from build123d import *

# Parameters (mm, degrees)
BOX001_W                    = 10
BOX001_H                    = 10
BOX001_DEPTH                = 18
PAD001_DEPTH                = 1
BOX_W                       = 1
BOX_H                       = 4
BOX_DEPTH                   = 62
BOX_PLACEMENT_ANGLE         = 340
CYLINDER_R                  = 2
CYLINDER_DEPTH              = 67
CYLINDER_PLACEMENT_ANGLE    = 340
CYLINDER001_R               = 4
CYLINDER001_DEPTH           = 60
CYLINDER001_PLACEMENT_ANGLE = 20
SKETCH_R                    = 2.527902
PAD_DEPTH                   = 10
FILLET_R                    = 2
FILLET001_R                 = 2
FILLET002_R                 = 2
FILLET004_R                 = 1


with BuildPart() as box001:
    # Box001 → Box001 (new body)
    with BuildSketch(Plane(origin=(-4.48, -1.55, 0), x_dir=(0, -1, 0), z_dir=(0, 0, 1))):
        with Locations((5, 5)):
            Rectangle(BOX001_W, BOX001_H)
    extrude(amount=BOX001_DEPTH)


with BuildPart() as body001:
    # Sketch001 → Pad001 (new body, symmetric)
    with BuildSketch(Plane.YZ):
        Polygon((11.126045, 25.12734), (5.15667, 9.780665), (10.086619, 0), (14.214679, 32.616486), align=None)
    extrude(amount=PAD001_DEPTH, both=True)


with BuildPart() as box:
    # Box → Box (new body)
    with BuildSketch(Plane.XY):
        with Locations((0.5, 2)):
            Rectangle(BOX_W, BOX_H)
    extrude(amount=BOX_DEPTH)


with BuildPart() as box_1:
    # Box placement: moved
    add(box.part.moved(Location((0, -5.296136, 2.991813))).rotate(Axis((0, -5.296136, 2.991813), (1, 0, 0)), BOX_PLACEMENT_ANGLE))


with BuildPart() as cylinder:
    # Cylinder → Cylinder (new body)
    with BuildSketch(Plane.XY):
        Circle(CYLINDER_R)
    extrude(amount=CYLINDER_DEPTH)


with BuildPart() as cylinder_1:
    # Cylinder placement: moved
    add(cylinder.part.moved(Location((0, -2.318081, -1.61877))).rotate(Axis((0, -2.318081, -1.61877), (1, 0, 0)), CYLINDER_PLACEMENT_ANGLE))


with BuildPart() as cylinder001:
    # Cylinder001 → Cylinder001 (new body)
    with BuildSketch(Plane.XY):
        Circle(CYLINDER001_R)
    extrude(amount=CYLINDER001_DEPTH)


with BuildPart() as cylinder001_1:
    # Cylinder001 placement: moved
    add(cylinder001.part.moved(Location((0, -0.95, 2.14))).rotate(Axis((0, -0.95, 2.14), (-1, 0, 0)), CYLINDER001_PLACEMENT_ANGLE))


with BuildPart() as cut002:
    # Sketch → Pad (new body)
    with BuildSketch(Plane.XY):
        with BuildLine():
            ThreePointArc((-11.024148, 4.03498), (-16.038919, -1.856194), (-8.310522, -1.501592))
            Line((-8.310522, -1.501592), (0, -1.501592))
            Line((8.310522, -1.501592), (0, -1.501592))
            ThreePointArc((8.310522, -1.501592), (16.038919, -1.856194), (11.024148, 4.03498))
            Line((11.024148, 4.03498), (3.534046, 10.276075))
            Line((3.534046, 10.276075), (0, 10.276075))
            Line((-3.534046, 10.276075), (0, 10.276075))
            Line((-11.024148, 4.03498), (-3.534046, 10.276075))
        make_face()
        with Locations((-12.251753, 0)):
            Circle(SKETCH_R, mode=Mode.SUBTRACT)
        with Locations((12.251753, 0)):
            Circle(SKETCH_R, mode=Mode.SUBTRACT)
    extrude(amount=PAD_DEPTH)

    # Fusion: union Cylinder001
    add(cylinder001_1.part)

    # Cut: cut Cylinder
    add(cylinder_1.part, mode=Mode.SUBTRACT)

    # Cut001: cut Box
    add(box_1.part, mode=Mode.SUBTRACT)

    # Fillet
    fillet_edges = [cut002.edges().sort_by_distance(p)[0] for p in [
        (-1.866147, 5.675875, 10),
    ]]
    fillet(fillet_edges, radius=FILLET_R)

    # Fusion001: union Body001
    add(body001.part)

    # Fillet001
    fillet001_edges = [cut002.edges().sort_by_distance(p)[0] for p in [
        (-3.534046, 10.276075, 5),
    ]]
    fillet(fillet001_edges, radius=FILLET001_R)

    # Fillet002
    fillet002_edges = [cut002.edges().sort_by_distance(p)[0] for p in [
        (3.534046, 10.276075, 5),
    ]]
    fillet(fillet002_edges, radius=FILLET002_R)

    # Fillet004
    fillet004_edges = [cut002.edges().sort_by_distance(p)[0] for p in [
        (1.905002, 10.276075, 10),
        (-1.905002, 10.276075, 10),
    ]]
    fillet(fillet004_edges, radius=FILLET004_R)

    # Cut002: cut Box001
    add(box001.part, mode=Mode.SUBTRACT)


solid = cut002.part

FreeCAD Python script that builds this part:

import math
import FreeCAD as App
import Part
import Sketcher

V = App.Vector
Q = App.Units.Quantity


def edges_at(feature, points):
    """Names of the edges that pass closest to the given points."""
    edges = feature.Shape.Edges
    near = lambda p: min(range(len(edges)), key=lambda i: edges[i].distToShape(Part.Vertex(*p))[0])
    return sorted({f"Edge{near(p) + 1}" for p in points})


def add_polygon(sketch, points):
    """Adds a closed chain of lines whose ends are joined by coincident constraints."""
    first, n = sketch.GeometryCount, len(points)
    for a, b in zip(points, points[1:] + points[:1]):
        sketch.addGeometry(Part.LineSegment(App.Vector(*a, 0), App.Vector(*b, 0)), False)
    for i in range(n):
        sketch.addConstraint(Sketcher.Constraint("Coincident", first + i, 2, first + (i + 1) % n, 1))

doc = App.newDocument("Part")
body = doc.addObject("PartDesign::Body", "Body")

# Sketch on XY plane
sketch1 = body.newObject("Sketcher::SketchObject", "Sketch")
sketch1.AttachmentSupport = (doc.getObject("XY_Plane"), [""])
sketch1.MapMode = "FlatFace"
add_polygon(sketch1, [(5.52, -1.55), (-4.48, -1.55), (-4.48, -11.55), (5.52, -11.55)])  # lines 0-3
sketch1.addConstraint(Sketcher.Constraint("Horizontal", 0))
sketch1.addConstraint(Sketcher.Constraint("Vertical", 1))
sketch1.addConstraint(Sketcher.Constraint("Horizontal", 2))
sketch1.addConstraint(Sketcher.Constraint("Vertical", 3))
sketch1.addConstraint(Sketcher.Constraint("Equal", 2, 1))
sketch1.addConstraint(Sketcher.Constraint("DistanceX", 0, 2, 0, 1, Q("10 mm")))
sketch1.addConstraint(Sketcher.Constraint("DistanceX", 0, 2, -1, 1, Q("4.48 mm")))
sketch1.addConstraint(Sketcher.Constraint("DistanceY", 0, 2, -1, 1, Q("1.55 mm")))
pad1 = body.newObject("PartDesign::Pad", "Pad")
pad1.Profile = sketch1
pad1.Length = 18
body2 = doc.addObject("PartDesign::Body", "Body001")

# Sketch on YZ plane
sketch2 = body2.newObject("Sketcher::SketchObject", "Sketch001")
sketch2.AttachmentSupport = (doc.getObject("YZ_Plane001"), [""])
sketch2.MapMode = "FlatFace"
add_polygon(sketch2, [(11.126045, 25.12734), (5.15667, 9.780665), (10.086619, 0), (14.214679, 32.616486)])  # lines 0-3
sketch2.addConstraint(Sketcher.Constraint("PointOnObject", 1, 2, -1))
sketch2.addConstraint(Sketcher.Constraint("Distance", 0, Q("16.46675 mm")))
sketch2.addConstraint(Sketcher.Constraint("Distance", 1, Q("10.95289 mm")))
sketch2.addConstraint(Sketcher.Constraint("Distance", 2, Q("32.876679 mm")))
sketch2.addConstraint(Sketcher.Constraint("DistanceX", -1, 1, 0, 2, Q("5.15667 mm")))
sketch2.addConstraint(Sketcher.Constraint("DistanceX", -1, 1, 1, 2, Q("10.086619 mm")))
sketch2.addConstraint(Sketcher.Constraint("DistanceX", -1, 1, 2, 2, Q("14.214679 mm")))
sketch2.addConstraint(Sketcher.Constraint("DistanceY", -1, 1, 3, 2, Q("25.12734 mm")))
pad2 = body2.newObject("PartDesign::Pad", "Pad001")
pad2.Profile = sketch2
pad2.Length = 2
pad2.Midplane = True
body3 = doc.addObject("PartDesign::Body", "Body002")

# Sketch on XY plane
sketch3 = body3.newObject("Sketcher::SketchObject", "Sketch002")
sketch3.AttachmentSupport = (doc.getObject("XY_Plane002"), [""])
sketch3.MapMode = "FlatFace"
add_polygon(sketch3, [(0, 4), (0, 0), (1, 0), (1, 4)])  # lines 0-3
sketch3.addConstraint(Sketcher.Constraint("Vertical", 0))
sketch3.addConstraint(Sketcher.Constraint("Horizontal", 1))
sketch3.addConstraint(Sketcher.Constraint("Vertical", 2))
sketch3.addConstraint(Sketcher.Constraint("Horizontal", 3))
sketch3.addConstraint(Sketcher.Constraint("Coincident", 0, 2, -1, 1))
sketch3.addConstraint(Sketcher.Constraint("DistanceX", 1, 1, 1, 2, Q("1 mm")))
sketch3.addConstraint(Sketcher.Constraint("DistanceY", 0, 2, 0, 1, Q("4 mm")))
pad3 = body3.newObject("PartDesign::Pad", "Pad002")
pad3.Profile = sketch3
pad3.Length = 62
body4 = doc.addObject("PartDesign::Body", "Body003")
doc.recompute()

body3.Placement = App.Placement(V(0, -5.296136, 2.991813), App.Rotation(V(1, 0, 0), 340))
boolean = body4.newObject("PartDesign::Boolean", "Boolean")
boolean.Type = "Fuse"
boolean.addObjects([body3])
body5 = doc.addObject("PartDesign::Body", "Body004")

# Sketch on XY plane
sketch4 = body5.newObject("Sketcher::SketchObject", "Sketch003")
sketch4.AttachmentSupport = (doc.getObject("XY_Plane004"), [""])
sketch4.MapMode = "FlatFace"
sketch4.addGeometry(Part.Circle(V(0, 0, 0), V(0, 0, 1), 2), False)
sketch4.addConstraint(Sketcher.Constraint("Coincident", 0, 3, -1, 1))
sketch4.addConstraint(Sketcher.Constraint("Diameter", 0, Q("4 mm")))
pad4 = body5.newObject("PartDesign::Pad", "Pad003")
pad4.Profile = sketch4
pad4.Length = 67
body6 = doc.addObject("PartDesign::Body", "Body005")
doc.recompute()

body5.Placement = App.Placement(V(0, -2.318081, -1.61877), App.Rotation(V(1, 0, 0), 340))
boolean2 = body6.newObject("PartDesign::Boolean", "Boolean001")
boolean2.Type = "Fuse"
boolean2.addObjects([body5])
body7 = doc.addObject("PartDesign::Body", "Body006")

# Sketch on XY plane
sketch5 = body7.newObject("Sketcher::SketchObject", "Sketch004")
sketch5.AttachmentSupport = (doc.getObject("XY_Plane006"), [""])
sketch5.MapMode = "FlatFace"
sketch5.addGeometry(Part.Circle(V(0, 0, 0), V(0, 0, 1), 4), False)
sketch5.addConstraint(Sketcher.Constraint("Coincident", 0, 3, -1, 1))
sketch5.addConstraint(Sketcher.Constraint("Diameter", 0, Q("8 mm")))
pad5 = body7.newObject("PartDesign::Pad", "Pad004")
pad5.Profile = sketch5
pad5.Length = 60
body8 = doc.addObject("PartDesign::Body", "Body007")
doc.recompute()

body7.Placement = App.Placement(V(0, -0.95, 2.14), App.Rotation(V(-1, 0, 0), 20))
boolean3 = body8.newObject("PartDesign::Boolean", "Boolean002")
boolean3.Type = "Fuse"
boolean3.addObjects([body7])
body9 = doc.addObject("PartDesign::Body", "Body008")

# Sketch on XY plane
sketch6 = body9.newObject("Sketcher::SketchObject", "Sketch005")
sketch6.AttachmentSupport = (doc.getObject("XY_Plane008"), [""])
sketch6.MapMode = "FlatFace"
sketch6.addGeometry(Part.ArcOfCircle(Part.Circle(V(-12.251753, 0, 0), V(0, 0, 1), 4.217592), math.radians(73.078106), math.radians(339.14338)), False)
sketch6.addGeometry(Part.LineSegment(V(-8.310522, -1.501592, 0), V(8.310522, -1.501592, 0)), False)
sketch6.addGeometry(Part.ArcOfCircle(Part.Circle(V(12.251753, 0, 0), V(0, 0, 1), 4.217592), math.radians(-159.14338), math.radians(106.921894)), False)
sketch6.addGeometry(Part.LineSegment(V(11.024148, 4.03498, 0), V(3.534046, 10.276075, 0)), False)
sketch6.addGeometry(Part.LineSegment(V(3.534046, 10.276075, 0), V(-3.534046, 10.276075, 0)), False)
sketch6.addGeometry(Part.LineSegment(V(-3.534046, 10.276075, 0), V(-11.024148, 4.03498, 0)), False)
sketch6.addGeometry(Part.Circle(V(-12.251753, 0, 0), V(0, 0, 1), 2.527902), False)
sketch6.addGeometry(Part.Circle(V(12.251753, 0, 0), V(0, 0, 1), 2.527902), False)
sketch6.addConstraint(Sketcher.Constraint("Coincident", 0, 2, 1, 1))
sketch6.addConstraint(Sketcher.Constraint("Coincident", 1, 2, 2, 1))
sketch6.addConstraint(Sketcher.Constraint("Coincident", 2, 2, 3, 1))
sketch6.addConstraint(Sketcher.Constraint("Coincident", 3, 2, 4, 1))
sketch6.addConstraint(Sketcher.Constraint("Coincident", 4, 2, 5, 1))
sketch6.addConstraint(Sketcher.Constraint("Coincident", 5, 2, 0, 1))
sketch6.addConstraint(Sketcher.Constraint("Horizontal", 1))
sketch6.addConstraint(Sketcher.Constraint("Horizontal", 4))
sketch6.addConstraint(Sketcher.Constraint("Coincident", 6, 3, 0, 3))
sketch6.addConstraint(Sketcher.Constraint("Coincident", 7, 3, 2, 3))
sketch6.addConstraint(Sketcher.Constraint("Equal", 0, 2))
sketch6.addConstraint(Sketcher.Constraint("Equal", 6, 7))
sketch6.addConstraint(Sketcher.Constraint("Symmetric", 0, 3, 2, 3, -1, 1))
sketch6.addConstraint(Sketcher.Constraint("Symmetric", 2, 2, 5, 2, -2))
sketch6.addConstraint(Sketcher.Constraint("Equal", 3, 5))
sketch6.addConstraint(Sketcher.Constraint("Radius", 0, Q("4.217592 mm")))
sketch6.addConstraint(Sketcher.Constraint("Diameter", 6, Q("5.055804 mm")))
sketch6.addConstraint(Sketcher.Constraint("DistanceX", 6, 3, 2, 2, Q("23.275901 mm")))
sketch6.addConstraint(Sketcher.Constraint("DistanceX", 3, 2, 2, 2, Q("7.490102 mm")))
sketch6.addConstraint(Sketcher.Constraint("DistanceX", 1, 1, 1, 2, Q("16.621044 mm")))
sketch6.addConstraint(Sketcher.Constraint("DistanceX", 4, 2, 4, 1, Q("7.068092 mm")))
sketch6.addConstraint(Sketcher.Constraint("Distance", 3, Q("9.749507 mm")))
pad6 = body9.newObject("PartDesign::Pad", "Pad005")
pad6.Profile = sketch6
pad6.Length = 10
doc.recompute()

boolean4 = body9.newObject("PartDesign::Boolean", "Boolean003")
boolean4.Type = "Fuse"
boolean4.addObjects([body8])
doc.recompute()

boolean5 = body9.newObject("PartDesign::Boolean", "Boolean004")
boolean5.Type = "Cut"
boolean5.addObjects([body6])
doc.recompute()

boolean6 = body9.newObject("PartDesign::Boolean", "Boolean005")
boolean6.Type = "Cut"
boolean6.addObjects([body4])
doc.recompute()

fillet = body9.newObject("PartDesign::Fillet", "Fillet")
fillet.Base = (boolean6, edges_at(boolean6, [(-1.866, 5.676, 10)]))
fillet.Radius = 2
doc.recompute()

boolean7 = body9.newObject("PartDesign::Boolean", "Boolean006")
boolean7.Type = "Fuse"
boolean7.addObjects([body2])
doc.recompute()

fillet2 = body9.newObject("PartDesign::Fillet", "Fillet001")
fillet2.Base = (boolean7, edges_at(boolean7, [(-3.534, 10.276, 5)]))
fillet2.Radius = 2
doc.recompute()

fillet3 = body9.newObject("PartDesign::Fillet", "Fillet002")
fillet3.Base = (fillet2, edges_at(fillet2, [(3.534, 10.276, 5)]))
fillet3.Radius = 2
doc.recompute()

fillet4 = body9.newObject("PartDesign::Fillet", "Fillet003")
fillet4.Base = (fillet3, edges_at(fillet3, [(1.905, 10.276, 10), (-1.905, 10.276, 10)]))
fillet4.Radius = 1
doc.recompute()

boolean8 = body9.newObject("PartDesign::Boolean", "Boolean007")
boolean8.Type = "Cut"
boolean8.addObjects([body])

doc.recompute()
